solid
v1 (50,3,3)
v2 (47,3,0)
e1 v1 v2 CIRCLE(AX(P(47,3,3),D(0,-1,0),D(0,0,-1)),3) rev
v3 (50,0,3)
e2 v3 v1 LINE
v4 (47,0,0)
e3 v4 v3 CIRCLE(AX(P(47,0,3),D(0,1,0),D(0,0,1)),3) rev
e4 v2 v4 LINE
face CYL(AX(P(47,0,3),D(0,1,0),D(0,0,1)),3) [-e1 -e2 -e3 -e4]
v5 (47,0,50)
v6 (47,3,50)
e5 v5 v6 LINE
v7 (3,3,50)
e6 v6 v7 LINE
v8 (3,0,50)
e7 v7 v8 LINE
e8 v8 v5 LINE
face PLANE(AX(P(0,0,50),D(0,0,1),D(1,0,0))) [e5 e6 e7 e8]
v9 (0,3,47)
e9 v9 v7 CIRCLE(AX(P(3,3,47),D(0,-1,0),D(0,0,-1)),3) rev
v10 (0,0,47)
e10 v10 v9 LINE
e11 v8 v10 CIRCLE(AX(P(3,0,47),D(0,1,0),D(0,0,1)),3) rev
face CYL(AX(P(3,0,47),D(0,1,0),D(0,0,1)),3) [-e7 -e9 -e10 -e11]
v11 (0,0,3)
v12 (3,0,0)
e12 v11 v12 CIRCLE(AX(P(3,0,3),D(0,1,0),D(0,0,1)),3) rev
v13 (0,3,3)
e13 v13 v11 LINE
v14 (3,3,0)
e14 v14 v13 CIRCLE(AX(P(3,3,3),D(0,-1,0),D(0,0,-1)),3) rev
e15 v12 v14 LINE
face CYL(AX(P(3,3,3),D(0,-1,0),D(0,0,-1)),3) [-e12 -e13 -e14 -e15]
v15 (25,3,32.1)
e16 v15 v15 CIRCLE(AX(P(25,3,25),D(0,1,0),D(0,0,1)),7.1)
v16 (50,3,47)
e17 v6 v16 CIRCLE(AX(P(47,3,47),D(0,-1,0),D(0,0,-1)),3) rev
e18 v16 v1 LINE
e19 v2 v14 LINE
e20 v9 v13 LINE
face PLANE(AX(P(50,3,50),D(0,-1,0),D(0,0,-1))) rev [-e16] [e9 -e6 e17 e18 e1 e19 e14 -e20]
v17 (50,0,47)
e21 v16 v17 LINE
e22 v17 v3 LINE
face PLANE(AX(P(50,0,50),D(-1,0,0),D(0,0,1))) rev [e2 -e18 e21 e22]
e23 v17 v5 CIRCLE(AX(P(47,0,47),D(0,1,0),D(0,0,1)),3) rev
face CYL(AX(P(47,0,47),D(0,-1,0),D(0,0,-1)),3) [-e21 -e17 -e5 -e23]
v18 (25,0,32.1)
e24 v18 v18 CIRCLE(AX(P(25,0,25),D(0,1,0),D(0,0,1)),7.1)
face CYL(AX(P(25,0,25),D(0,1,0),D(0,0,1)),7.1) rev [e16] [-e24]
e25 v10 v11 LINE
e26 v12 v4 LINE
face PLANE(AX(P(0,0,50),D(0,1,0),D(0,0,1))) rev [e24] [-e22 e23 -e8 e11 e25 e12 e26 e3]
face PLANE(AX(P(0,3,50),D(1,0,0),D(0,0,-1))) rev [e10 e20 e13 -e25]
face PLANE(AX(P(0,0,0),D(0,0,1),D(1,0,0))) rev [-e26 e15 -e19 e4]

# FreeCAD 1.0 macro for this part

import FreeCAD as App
import Part
import Sketcher

V = App.Vector


def edges_at(feature, points):
    """Names of the edges that pass closest to the given points."""
    edges = feature.Shape.Edges
    near = lambda p: min(range(len(edges)), key=lambda i: edges[i].distToShape(Part.Vertex(*p))[0])
    return sorted({f"Edge{near(p) + 1}" for p in points})

doc = App.newDocument("Part")
body = doc.addObject("PartDesign::Body", "Body")

# Sketch on XY plane
sketch1 = body.newObject("Sketcher::SketchObject", "Sketch")
sketch1.AttachmentSupport = (doc.getObject("XY_Plane"), [""])
sketch1.MapMode = "FlatFace"
sketch1.addGeometry(Part.LineSegment(V(0, 3, 0), V(0, 0, 0)), False)
sketch1.addGeometry(Part.LineSegment(V(0, 0, 0), V(50, 0, 0)), False)
sketch1.addGeometry(Part.LineSegment(V(50, 0, 0), V(50, 3, 0)), False)
sketch1.addGeometry(Part.LineSegment(V(50, 3, 0), V(0, 3, 0)), False)
sketch1.addConstraint(Sketcher.Constraint("Coincident", 0, 2, 1, 1))
sketch1.addConstraint(Sketcher.Constraint("Coincident", 1, 2, 2, 1))
sketch1.addConstraint(Sketcher.Constraint("Coincident", 2, 2, 3, 1))
sketch1.addConstraint(Sketcher.Constraint("Coincident", 3, 2, 0, 1))
sketch1.addConstraint(Sketcher.Constraint("Vertical", 0))
sketch1.addConstraint(Sketcher.Constraint("Horizontal", 1))
sketch1.addConstraint(Sketcher.Constraint("Vertical", 2))
sketch1.addConstraint(Sketcher.Constraint("Horizontal", 3))
sketch1.addConstraint(Sketcher.Constraint("Coincident", 0, 2, -1, 1))
sketch1.addConstraint(Sketcher.Constraint("DistanceX", 1, 1, 1, 2, 50.0))
sketch1.addConstraint(Sketcher.Constraint("DistanceY", 0, 2, 0, 1, 3.0))
pad1 = body.newObject("PartDesign::Pad", "Pad")
pad1.Profile = sketch1
pad1.Length = 50
doc.recompute()

fillet = body.newObject("PartDesign::Fillet", "Fillet")
fillet.Base = (pad1, edges_at(pad1, [
    (50, 1.5, 50),
    (0, 1.5, 50),
    (50, 1.5, 0),
    (0, 1.5, 0),
]))
fillet.Radius = 3

# Sketch on XZ plane
sketch2 = body.newObject("Sketcher::SketchObject", "Sketch001")
sketch2.AttachmentSupport = (doc.getObject("XZ_Plane"), [""])
sketch2.MapMode = "FlatFace"
sketch2.AttachmentOffset = App.Placement(V(0, 0, -3), App.Rotation())
sketch2.addGeometry(Part.Circle(V(25, 25, 0), V(0, 0, 1), 7.1), False)
sketch2.addConstraint(Sketcher.Constraint("Diameter", 0, 14.2))
sketch2.addConstraint(Sketcher.Constraint("DistanceX", -1, 1, 0, 3, 25.0))
sketch2.addConstraint(Sketcher.Constraint("DistanceY", -1, 1, 0, 3, 25.0))
pocket1 = body.newObject("PartDesign::Pocket", "Pocket")
pocket1.Profile = sketch2
pocket1.Type = "ThroughAll"
pocket1.Reversed = True

doc.recompute()
